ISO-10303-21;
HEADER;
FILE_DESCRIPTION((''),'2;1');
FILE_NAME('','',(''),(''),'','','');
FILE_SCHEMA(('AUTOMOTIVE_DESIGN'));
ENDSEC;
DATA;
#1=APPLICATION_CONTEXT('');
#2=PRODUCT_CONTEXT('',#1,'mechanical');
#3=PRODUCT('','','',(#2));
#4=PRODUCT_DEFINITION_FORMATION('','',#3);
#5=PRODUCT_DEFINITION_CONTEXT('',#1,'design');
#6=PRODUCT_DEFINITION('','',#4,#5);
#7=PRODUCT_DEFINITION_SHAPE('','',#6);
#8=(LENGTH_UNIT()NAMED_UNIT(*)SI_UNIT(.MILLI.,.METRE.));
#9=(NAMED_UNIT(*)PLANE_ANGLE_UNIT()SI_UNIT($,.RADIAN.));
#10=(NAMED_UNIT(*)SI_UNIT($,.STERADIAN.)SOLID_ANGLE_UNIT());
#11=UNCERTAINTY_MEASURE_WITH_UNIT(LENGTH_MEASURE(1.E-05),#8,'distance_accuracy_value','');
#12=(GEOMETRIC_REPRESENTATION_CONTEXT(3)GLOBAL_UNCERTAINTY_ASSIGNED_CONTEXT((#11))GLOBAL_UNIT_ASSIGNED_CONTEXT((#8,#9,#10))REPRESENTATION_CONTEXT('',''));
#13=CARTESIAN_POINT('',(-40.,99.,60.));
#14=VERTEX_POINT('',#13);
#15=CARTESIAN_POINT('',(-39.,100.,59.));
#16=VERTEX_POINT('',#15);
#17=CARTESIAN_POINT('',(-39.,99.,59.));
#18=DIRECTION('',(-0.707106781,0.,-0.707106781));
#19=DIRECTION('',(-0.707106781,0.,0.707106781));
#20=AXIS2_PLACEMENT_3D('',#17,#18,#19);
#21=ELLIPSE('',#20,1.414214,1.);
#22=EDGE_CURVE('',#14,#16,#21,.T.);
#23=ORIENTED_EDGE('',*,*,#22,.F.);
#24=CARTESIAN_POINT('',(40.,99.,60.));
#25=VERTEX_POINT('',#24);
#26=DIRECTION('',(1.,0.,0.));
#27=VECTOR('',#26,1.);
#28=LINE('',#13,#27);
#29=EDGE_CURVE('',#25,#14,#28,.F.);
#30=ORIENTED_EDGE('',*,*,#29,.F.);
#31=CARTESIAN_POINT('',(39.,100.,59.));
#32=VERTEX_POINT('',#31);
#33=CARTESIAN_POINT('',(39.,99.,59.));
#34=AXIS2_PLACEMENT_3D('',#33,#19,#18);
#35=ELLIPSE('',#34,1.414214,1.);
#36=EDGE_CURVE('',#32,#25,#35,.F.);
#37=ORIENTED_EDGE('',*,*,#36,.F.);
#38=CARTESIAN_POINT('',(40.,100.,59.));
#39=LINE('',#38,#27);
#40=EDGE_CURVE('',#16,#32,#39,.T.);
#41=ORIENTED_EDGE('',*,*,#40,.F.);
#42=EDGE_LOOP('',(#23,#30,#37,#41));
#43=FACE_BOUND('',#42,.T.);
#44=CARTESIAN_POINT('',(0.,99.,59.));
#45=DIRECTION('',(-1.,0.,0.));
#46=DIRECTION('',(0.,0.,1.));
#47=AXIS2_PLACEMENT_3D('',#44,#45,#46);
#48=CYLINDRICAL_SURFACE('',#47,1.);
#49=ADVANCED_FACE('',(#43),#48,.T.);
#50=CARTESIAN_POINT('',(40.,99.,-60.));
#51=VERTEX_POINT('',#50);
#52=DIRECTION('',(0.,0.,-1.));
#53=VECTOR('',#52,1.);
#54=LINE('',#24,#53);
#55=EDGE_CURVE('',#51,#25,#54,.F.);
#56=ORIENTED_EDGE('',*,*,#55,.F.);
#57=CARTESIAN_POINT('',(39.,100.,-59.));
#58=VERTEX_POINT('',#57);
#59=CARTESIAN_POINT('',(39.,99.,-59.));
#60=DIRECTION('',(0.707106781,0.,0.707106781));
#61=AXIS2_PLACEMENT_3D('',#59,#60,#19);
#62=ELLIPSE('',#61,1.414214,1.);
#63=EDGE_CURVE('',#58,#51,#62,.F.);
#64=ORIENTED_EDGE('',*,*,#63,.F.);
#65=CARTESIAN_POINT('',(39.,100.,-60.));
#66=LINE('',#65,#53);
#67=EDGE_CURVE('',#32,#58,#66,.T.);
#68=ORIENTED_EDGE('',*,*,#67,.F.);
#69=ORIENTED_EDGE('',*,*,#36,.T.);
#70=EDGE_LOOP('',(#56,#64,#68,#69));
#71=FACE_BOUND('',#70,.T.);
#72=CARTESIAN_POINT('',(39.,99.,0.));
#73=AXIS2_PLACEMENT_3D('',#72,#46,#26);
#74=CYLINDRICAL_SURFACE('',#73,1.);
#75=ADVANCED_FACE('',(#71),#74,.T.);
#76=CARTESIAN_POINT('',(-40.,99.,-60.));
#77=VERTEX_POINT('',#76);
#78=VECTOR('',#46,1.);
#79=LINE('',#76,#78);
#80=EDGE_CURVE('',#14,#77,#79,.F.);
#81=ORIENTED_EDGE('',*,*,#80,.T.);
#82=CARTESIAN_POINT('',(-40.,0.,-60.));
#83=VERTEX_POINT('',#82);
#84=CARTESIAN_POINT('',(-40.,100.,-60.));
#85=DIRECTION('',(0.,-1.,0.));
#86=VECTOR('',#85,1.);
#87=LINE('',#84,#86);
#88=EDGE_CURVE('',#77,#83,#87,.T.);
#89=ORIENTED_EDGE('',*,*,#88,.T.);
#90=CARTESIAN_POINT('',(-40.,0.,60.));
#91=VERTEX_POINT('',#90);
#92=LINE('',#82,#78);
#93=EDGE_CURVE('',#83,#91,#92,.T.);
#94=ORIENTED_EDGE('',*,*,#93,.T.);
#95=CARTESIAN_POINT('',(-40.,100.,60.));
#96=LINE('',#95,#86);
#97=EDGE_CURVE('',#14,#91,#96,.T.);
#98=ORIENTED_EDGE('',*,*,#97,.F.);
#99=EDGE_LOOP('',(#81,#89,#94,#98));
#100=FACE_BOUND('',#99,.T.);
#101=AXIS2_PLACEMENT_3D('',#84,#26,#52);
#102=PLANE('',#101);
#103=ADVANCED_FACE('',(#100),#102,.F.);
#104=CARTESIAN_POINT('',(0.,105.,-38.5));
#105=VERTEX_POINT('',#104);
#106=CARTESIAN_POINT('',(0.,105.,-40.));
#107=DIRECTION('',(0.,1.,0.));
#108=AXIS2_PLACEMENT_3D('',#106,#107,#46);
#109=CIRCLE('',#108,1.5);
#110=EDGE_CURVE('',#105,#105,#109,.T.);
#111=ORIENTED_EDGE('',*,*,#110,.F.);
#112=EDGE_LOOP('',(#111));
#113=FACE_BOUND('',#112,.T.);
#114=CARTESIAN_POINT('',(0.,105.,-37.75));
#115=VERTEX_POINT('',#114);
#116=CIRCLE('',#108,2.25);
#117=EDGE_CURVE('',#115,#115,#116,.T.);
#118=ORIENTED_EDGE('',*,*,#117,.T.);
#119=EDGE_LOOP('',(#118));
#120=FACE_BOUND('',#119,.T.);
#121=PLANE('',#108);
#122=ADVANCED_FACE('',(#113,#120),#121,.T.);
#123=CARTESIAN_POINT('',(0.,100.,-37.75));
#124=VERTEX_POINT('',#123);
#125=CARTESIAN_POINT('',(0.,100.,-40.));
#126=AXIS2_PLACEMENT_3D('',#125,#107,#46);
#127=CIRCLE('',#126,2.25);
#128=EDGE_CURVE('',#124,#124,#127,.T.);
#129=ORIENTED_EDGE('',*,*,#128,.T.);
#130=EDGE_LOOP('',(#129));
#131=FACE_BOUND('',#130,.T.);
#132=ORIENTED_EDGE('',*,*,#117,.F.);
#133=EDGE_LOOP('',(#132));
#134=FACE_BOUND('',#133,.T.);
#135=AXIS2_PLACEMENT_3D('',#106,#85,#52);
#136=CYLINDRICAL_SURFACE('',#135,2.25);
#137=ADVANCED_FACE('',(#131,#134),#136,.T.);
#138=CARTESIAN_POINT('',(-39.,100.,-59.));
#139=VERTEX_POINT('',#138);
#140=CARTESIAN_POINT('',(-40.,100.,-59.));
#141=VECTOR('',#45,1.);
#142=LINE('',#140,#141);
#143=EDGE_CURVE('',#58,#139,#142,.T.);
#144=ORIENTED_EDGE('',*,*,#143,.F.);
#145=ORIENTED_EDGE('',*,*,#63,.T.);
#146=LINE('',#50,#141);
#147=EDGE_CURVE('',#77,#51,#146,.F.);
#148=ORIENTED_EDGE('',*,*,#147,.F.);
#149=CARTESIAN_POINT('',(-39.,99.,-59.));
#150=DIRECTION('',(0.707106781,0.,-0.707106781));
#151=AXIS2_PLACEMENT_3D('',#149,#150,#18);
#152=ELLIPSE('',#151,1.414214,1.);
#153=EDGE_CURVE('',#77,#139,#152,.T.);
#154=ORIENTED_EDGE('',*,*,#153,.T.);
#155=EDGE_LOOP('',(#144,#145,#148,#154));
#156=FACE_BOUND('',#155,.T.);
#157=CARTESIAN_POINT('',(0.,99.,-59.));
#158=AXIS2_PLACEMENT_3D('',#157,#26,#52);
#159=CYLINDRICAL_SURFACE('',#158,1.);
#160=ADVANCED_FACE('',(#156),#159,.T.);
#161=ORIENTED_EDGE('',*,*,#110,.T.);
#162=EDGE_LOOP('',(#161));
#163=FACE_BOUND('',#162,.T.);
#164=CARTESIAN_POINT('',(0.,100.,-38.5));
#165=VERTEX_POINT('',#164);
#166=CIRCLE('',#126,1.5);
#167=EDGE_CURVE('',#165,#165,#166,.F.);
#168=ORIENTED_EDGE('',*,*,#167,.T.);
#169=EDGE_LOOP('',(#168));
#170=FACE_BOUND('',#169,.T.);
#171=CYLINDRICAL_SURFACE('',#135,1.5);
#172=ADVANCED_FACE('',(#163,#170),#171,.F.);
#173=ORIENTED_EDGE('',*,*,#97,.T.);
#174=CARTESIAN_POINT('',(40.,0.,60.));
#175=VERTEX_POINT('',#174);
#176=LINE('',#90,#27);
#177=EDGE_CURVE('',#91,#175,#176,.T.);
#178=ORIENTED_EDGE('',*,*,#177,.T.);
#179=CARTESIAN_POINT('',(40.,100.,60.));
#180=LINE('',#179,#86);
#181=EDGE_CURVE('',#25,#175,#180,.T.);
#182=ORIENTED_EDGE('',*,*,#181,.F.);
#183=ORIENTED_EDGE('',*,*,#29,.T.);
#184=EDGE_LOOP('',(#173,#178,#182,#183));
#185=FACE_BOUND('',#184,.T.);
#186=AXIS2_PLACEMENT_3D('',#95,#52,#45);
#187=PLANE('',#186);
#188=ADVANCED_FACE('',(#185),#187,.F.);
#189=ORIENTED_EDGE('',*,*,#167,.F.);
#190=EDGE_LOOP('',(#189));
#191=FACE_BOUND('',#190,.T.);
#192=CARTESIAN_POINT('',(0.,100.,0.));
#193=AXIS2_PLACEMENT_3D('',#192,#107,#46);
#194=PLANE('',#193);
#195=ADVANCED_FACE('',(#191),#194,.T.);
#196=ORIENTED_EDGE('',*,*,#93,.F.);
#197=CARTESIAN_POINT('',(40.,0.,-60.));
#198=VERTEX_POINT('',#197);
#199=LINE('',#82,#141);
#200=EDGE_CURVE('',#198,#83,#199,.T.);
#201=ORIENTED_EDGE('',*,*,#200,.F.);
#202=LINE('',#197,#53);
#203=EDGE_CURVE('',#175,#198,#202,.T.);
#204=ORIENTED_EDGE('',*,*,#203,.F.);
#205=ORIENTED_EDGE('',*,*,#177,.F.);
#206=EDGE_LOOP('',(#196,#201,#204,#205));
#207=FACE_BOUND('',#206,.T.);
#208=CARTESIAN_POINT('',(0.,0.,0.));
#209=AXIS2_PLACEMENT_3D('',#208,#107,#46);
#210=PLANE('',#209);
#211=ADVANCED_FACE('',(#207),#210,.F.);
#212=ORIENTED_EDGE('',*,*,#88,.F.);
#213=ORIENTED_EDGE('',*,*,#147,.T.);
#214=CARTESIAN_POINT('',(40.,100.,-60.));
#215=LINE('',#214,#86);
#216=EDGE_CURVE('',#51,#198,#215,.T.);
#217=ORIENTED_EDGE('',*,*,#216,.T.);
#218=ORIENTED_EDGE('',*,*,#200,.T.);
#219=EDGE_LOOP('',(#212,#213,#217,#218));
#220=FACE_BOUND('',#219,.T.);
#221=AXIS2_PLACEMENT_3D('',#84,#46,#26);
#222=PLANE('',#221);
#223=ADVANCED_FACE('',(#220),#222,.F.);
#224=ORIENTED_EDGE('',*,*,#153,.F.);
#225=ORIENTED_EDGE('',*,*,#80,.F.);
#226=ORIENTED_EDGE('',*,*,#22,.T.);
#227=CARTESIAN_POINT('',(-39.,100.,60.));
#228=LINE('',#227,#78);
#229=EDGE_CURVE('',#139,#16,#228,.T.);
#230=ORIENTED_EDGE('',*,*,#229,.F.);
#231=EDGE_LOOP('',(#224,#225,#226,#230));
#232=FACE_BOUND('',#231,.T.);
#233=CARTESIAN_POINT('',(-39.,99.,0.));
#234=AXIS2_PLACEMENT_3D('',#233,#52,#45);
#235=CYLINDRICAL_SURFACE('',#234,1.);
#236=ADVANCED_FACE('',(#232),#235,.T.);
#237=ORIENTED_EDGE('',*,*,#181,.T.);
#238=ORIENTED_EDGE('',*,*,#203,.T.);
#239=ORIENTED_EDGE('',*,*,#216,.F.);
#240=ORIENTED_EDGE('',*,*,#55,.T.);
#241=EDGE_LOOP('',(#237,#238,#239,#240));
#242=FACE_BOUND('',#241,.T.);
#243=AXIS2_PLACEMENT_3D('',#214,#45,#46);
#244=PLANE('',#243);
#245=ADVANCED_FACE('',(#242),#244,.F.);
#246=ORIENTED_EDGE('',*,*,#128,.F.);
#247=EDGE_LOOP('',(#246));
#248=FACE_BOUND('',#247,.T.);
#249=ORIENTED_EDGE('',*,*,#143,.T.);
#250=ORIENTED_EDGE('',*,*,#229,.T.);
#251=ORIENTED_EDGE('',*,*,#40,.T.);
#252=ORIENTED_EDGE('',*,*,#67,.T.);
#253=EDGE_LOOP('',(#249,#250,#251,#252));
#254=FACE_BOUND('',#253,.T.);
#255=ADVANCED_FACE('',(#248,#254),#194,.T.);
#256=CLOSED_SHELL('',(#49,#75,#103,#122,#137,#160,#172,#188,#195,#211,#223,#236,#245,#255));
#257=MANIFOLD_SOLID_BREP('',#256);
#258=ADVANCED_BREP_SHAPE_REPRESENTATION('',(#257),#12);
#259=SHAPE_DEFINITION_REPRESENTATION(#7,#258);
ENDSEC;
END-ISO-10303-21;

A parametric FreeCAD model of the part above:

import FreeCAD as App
import Part
import Sketcher
Q = App.Units.Quantity


def edges_at(feature, points):
    """Names of the edges that pass closest to the given points."""
    edges = feature.Shape.Edges
    near = lambda p: min(range(len(edges)), key=lambda i: edges[i].distToShape(Part.Vertex(*p))[0])
    return sorted({f"Edge{near(p) + 1}" for p in points})


def add_polygon(sketch, points):
    """Adds a closed chain of lines whose ends are joined by coincident constraints."""
    first, n = sketch.GeometryCount, len(points)
    for a, b in zip(points, points[1:] + points[:1]):
        sketch.addGeometry(Part.LineSegment(App.Vector(*a, 0), App.Vector(*b, 0)), False)
    for i in range(n):
        sketch.addConstraint(Sketcher.Constraint("Coincident", first + i, 2, first + (i + 1) % n, 1))

doc = App.newDocument("Part")
body = doc.addObject("PartDesign::Body", "Body")

# Sketch on XZ plane
sketch1 = body.newObject("Sketcher::SketchObject", "Sketch")
sketch1.AttachmentSupport = (doc.getObject("XZ_Plane"), [""])
sketch1.MapMode = "FlatFace"
add_polygon(sketch1, [(-40, -60), (-40, 60), (40, 60), (40, -60)])  # lines 0-3
sketch1.addConstraint([
    Sketcher.Constraint("Vertical", 0),
    Sketcher.Constraint("Horizontal", 1),
    Sketcher.Constraint("Vertical", 2),
    Sketcher.Constraint("Horizontal", 3),
    Sketcher.Constraint("Symmetric", 0, 2, 2, 2, -1, 1),
    Sketcher.Constraint("DistanceX", 1, 1, 1, 2, Q("80 mm")),
    Sketcher.Constraint("DistanceY", 0, 1, 0, 2, Q("120 mm")),
])
pad1 = body.newObject("PartDesign::Pad", "Pad")
pad1.Profile = sketch1
pad1.Length = 100
pad1.Reversed = True

# Sketch on XZ plane
sketch2 = body.newObject("Sketcher::SketchObject", "Sketch001")
sketch2.AttachmentSupport = (doc.getObject("XZ_Plane"), [""])
sketch2.MapMode = "FlatFace"
sketch2.AttachmentOffset = App.Placement(App.Vector(0, 0, -100), App.Rotation())
sketch2.addGeometry([
    Part.Circle(App.Vector(0, -40, 0), App.Vector(0, 0, 1), 2.2),
    Part.Circle(App.Vector(0, -40, 0), App.Vector(0, 0, 1), 1.5),
], False)
sketch2.addConstraint([
    Sketcher.Constraint("Coincident", 1, 3, 0, 3),
    Sketcher.Constraint("PointOnObject", 0, 3, -2),
    Sketcher.Constraint("Diameter", 1, Q("3 mm")),
    Sketcher.Constraint("Diameter", 0, Q("4.5 mm")),
    Sketcher.Constraint("DistanceY", 0, 3, -1, 1, Q("40 mm")),
])
pad2 = body.newObject("PartDesign::Pad", "Pad001")
pad2.Profile = sketch2
pad2.Length = 5
pad2.Reversed = True
doc.recompute()

fillet = body.newObject("PartDesign::Fillet", "Fillet")
fillet.Base = (pad2, edges_at(pad2, [
    (-40, 100, 0),
    (0, 100, 60),
    (40, 100, 0),
    (0, 100, -60),
]))
fillet.Radius = 1

doc.recompute()
